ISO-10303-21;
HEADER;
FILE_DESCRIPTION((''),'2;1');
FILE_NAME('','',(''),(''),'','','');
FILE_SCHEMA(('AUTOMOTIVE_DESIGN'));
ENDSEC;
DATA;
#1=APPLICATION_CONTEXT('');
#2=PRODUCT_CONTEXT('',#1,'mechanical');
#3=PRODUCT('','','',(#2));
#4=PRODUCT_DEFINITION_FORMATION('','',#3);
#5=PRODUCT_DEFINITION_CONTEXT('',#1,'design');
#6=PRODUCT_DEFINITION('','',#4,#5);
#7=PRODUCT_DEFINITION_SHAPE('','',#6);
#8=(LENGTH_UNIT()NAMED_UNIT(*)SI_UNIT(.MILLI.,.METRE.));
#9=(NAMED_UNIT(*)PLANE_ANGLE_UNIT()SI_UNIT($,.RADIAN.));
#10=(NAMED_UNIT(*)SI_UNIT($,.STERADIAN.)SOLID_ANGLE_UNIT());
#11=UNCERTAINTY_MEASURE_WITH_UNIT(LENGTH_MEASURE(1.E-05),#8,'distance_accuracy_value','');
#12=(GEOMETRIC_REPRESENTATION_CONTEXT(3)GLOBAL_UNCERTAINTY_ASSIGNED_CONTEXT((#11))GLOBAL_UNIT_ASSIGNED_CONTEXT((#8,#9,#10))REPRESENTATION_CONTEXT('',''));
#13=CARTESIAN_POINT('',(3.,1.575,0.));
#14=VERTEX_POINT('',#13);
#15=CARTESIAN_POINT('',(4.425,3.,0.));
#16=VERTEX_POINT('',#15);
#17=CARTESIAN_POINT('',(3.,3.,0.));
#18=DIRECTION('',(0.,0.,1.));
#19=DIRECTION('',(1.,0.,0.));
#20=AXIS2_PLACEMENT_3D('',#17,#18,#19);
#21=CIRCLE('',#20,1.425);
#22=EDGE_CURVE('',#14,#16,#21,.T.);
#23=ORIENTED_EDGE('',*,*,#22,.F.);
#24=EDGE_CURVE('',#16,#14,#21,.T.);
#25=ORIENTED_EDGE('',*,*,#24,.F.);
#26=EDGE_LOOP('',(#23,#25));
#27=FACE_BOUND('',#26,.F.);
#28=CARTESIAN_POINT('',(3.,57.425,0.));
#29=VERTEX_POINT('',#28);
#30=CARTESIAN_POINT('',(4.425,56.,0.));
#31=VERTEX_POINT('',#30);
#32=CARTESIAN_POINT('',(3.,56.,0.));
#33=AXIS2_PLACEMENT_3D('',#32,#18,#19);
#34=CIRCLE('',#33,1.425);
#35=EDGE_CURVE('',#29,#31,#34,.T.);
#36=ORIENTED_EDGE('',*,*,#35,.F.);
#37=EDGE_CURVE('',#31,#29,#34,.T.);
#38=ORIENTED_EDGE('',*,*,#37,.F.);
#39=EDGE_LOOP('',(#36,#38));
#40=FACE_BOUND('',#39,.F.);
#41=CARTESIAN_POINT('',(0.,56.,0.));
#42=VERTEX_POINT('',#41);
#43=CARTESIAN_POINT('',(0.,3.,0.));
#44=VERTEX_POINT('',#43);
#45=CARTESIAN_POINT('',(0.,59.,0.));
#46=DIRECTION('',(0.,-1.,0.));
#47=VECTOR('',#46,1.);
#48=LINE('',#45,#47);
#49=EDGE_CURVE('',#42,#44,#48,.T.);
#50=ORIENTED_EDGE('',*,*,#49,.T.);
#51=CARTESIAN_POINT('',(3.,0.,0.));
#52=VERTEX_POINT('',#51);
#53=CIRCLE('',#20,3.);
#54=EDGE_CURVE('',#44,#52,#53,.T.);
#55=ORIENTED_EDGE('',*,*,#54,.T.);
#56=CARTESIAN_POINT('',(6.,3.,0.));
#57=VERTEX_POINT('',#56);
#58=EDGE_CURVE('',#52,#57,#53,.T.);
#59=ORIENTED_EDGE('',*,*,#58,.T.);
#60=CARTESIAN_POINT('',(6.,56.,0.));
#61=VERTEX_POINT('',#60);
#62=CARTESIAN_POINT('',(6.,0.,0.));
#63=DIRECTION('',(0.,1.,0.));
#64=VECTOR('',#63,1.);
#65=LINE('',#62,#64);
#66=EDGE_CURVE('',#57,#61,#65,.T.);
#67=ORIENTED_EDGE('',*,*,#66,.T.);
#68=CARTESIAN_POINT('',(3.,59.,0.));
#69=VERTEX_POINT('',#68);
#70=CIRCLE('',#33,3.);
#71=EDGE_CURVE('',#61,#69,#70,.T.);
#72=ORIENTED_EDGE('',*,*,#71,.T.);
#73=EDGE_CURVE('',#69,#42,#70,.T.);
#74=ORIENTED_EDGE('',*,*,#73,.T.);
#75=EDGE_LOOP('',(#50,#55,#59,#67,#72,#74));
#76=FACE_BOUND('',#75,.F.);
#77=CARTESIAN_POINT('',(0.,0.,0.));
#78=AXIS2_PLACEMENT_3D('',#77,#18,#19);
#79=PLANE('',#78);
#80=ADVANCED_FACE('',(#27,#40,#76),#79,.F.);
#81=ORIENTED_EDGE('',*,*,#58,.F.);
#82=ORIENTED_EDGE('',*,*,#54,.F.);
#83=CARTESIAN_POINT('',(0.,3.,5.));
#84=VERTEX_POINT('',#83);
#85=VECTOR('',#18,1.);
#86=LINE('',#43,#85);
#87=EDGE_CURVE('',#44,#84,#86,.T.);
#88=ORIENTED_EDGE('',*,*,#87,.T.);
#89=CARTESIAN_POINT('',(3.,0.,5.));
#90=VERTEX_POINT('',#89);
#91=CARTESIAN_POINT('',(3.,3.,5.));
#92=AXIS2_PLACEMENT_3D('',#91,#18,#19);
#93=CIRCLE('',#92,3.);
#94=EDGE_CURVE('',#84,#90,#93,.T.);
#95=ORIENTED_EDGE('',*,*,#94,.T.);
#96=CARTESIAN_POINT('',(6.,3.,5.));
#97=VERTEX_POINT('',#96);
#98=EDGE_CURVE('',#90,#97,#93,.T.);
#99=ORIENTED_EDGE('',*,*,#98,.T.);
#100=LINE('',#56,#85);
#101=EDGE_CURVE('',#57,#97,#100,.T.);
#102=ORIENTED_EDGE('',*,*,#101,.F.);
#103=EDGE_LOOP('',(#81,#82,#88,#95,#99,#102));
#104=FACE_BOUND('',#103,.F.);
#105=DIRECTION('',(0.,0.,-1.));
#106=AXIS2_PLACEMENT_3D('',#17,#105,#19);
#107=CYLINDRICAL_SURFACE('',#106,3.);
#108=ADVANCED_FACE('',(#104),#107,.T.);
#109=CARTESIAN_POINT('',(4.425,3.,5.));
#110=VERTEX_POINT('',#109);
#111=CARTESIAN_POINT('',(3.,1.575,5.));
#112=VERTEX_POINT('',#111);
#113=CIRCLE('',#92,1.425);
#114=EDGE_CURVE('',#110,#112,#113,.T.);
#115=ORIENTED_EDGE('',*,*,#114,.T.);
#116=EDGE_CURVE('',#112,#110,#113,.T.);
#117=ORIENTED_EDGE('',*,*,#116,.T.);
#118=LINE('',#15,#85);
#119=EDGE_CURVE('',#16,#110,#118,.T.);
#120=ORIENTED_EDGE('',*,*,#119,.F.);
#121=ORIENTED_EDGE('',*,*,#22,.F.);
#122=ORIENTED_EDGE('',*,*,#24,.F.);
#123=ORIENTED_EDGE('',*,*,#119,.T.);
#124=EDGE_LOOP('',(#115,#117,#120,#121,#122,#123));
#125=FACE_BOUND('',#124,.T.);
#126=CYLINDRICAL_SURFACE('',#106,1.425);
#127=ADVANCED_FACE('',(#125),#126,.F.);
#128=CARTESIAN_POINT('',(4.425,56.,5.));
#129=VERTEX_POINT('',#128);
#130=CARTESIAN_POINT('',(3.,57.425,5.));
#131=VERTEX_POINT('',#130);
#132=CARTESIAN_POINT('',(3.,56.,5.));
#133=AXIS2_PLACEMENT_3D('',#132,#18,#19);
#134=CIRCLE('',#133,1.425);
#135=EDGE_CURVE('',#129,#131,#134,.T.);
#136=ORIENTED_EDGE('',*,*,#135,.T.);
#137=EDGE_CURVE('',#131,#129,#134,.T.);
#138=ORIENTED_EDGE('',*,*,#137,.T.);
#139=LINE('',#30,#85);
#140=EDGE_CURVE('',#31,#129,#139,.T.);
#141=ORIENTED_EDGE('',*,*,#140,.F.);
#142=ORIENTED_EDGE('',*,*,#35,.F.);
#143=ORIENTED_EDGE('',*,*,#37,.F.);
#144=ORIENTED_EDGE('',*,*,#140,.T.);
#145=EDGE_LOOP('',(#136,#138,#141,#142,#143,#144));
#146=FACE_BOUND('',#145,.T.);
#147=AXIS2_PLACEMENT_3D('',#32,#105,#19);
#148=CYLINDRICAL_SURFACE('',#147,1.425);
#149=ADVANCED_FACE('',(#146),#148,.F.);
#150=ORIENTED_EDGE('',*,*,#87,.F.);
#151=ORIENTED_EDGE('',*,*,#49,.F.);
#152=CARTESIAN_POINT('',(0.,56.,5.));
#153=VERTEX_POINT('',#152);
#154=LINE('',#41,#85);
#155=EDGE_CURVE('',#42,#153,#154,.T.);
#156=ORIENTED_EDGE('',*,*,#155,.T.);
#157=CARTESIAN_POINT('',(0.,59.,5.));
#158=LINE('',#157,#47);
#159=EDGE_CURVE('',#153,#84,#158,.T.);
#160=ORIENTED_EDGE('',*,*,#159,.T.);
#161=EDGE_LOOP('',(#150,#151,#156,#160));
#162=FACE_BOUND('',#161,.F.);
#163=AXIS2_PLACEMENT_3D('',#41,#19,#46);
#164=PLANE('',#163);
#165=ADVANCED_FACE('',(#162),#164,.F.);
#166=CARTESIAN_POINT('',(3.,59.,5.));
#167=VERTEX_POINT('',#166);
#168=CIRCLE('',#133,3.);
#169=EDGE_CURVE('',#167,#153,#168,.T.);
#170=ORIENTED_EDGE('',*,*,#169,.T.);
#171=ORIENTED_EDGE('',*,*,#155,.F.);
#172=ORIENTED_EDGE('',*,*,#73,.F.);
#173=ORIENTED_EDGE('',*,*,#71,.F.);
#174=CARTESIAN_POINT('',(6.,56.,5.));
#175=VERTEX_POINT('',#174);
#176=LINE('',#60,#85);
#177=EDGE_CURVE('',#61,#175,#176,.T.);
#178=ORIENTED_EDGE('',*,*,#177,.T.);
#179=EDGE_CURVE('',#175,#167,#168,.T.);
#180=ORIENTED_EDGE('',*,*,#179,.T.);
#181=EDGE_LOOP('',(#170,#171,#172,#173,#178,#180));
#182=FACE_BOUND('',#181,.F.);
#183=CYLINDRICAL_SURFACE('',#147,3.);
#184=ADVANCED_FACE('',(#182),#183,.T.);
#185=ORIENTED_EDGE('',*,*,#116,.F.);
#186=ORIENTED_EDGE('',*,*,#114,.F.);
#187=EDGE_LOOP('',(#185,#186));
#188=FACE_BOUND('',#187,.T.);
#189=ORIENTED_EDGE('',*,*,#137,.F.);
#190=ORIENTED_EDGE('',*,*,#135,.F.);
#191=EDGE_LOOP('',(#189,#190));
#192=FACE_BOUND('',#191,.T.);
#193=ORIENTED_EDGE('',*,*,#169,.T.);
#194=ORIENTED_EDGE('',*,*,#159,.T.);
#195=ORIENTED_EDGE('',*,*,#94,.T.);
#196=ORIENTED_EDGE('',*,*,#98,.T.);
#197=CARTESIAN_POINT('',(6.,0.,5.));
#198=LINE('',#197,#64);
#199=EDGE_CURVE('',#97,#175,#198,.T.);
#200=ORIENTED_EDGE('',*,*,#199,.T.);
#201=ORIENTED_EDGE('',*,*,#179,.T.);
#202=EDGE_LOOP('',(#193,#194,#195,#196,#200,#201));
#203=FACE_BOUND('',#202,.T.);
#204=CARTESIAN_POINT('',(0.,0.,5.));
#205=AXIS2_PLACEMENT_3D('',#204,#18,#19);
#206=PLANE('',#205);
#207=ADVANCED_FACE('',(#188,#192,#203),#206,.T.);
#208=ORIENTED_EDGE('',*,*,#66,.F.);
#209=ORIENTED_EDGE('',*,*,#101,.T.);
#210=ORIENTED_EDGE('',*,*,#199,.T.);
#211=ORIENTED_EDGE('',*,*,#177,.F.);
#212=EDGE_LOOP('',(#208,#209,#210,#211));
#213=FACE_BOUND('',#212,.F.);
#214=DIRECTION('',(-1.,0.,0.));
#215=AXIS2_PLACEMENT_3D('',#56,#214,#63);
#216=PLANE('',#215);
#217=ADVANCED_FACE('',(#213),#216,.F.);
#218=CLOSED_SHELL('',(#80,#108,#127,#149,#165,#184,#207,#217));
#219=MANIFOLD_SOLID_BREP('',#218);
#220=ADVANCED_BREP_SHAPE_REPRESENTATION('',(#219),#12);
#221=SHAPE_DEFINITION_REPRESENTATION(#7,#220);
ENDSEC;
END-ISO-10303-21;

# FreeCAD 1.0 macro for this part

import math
import FreeCAD as App
import Part
import Sketcher
from FreeCAD import Vector

doc = App.newDocument("Part")
params = doc.addObject("Spreadsheet::Sheet", "Params")
for row, (alias, value) in enumerate([
    ("sketch1_radius", "3 mm"),
    ("sketch1_diameter", "2.85 mm"),
    ("pad1_length", "5 mm"),
], start=1):
    params.set(f"A{row}", alias)
    params.set(f"B{row}", "=" + value)
    params.setAlias(f"B{row}", alias)

body = doc.addObject("PartDesign::Body", "Body")

sketch1 = body.newObject("Sketcher::SketchObject", "Sketch")
sketch1.AttachmentSupport = (doc.getObject("XY_Plane"), [""])
sketch1.MapMode = "FlatFace"
sketch1.addGeometry([
    Part.ArcOfCircle(Part.Circle(Vector(3, 3, 0), Vector(0, 0, 1), 3), math.radians(180), math.radians(270)),
    Part.ArcOfCircle(Part.Circle(Vector(3, 3, 0), Vector(0, 0, 1), 3), math.radians(-90), math.radians(0)),
    Part.LineSegment(Vector(6, 3, 0), Vector(6, 56, 0)),
    Part.ArcOfCircle(Part.Circle(Vector(3, 56, 0), Vector(0, 0, 1), 3), math.radians(0), math.radians(90)),
    Part.ArcOfCircle(Part.Circle(Vector(3, 56, 0), Vector(0, 0, 1), 3), math.radians(90), math.radians(180)),
    Part.LineSegment(Vector(0, 56, 0), Vector(0, 3, 0)),
    Part.Circle(Vector(3, 3, 0), Vector(0, 0, 1), 1.4),
    Part.Circle(Vector(3, 56, 0), Vector(0, 0, 1), 1.4),
], False)
sketch1.addConstraint([
    Sketcher.Constraint("Tangent", 0, 2, 1, 1),
    Sketcher.Constraint("Tangent", 1, 2, 2, 1),
    Sketcher.Constraint("Tangent", 2, 2, 3, 1),
    Sketcher.Constraint("Tangent", 3, 2, 4, 1),
    Sketcher.Constraint("Tangent", 4, 2, 5, 1),
    Sketcher.Constraint("Tangent", 5, 2, 0, 1),
    Sketcher.Constraint("Vertical", 2),
    Sketcher.Constraint("Vertical", 5),
    Sketcher.Constraint("Coincident", 6, 3, 0, 3),
    Sketcher.Constraint("Coincident", 7, 3, 3, 3),
    Sketcher.Constraint("Equal", 0, 1),
    Sketcher.Constraint("Equal", 1, 3),
    Sketcher.Constraint("Equal", 6, 7),
    Sketcher.Constraint("PointOnObject", 0, 2, -1),
    Sketcher.Constraint("PointOnObject", 4, 2, -2),
    Sketcher.Constraint("Vertical", 7, 3, 0, 2),
    Sketcher.Constraint("Vertical", 0, 2, 3, 2),
    Sketcher.Constraint("Radius", 0, 3.0),
    Sketcher.Constraint("Diameter", 6, 2.85),
    Sketcher.Constraint("DistanceY", -1, 1, 3, 2, 59.0),
])
sketch1.setExpression("Constraints[17]", "Params.sketch1_radius")
sketch1.setExpression("Constraints[18]", "Params.sketch1_diameter")
pad1 = body.newObject("PartDesign::Pad", "Pad")
pad1.Profile = sketch1
pad1.setExpression("Length", "Params.pad1_length")

doc.recompute()
